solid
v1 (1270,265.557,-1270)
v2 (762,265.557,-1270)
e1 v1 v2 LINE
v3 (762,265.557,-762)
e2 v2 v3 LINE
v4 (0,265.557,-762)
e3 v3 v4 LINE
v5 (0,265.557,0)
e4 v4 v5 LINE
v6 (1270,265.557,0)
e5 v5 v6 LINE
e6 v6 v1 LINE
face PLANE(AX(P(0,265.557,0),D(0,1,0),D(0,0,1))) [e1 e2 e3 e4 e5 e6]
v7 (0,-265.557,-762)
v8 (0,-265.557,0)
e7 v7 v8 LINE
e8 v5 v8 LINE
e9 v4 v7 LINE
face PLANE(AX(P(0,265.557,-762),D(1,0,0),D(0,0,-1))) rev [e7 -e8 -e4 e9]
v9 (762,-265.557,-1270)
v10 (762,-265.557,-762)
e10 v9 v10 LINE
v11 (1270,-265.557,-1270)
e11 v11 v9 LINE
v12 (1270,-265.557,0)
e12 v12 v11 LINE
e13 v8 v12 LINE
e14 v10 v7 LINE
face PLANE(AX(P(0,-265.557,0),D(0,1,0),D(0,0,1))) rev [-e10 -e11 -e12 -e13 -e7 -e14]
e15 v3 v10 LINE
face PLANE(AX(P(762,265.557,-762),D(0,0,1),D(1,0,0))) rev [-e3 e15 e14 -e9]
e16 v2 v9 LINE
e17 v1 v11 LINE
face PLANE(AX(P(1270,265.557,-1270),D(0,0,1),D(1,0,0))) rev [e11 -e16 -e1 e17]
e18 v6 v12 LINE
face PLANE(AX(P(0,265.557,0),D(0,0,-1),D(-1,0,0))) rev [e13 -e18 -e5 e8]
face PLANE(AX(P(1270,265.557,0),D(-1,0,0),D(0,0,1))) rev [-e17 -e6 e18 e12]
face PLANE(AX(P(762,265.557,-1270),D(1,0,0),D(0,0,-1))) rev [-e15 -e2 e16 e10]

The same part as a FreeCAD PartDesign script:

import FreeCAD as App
import Part
import Sketcher
from FreeCAD import Vector
Q = App.Units.Quantity


def add_polygon(sketch, points):
    """Adds a closed chain of lines whose ends are joined by coincident constraints."""
    first, n = sketch.GeometryCount, len(points)
    for a, b in zip(points, points[1:] + points[:1]):
        sketch.addGeometry(Part.LineSegment(App.Vector(*a, 0), App.Vector(*b, 0)), False)
    for i in range(n):
        sketch.addConstraint(Sketcher.Constraint("Coincident", first + i, 2, first + (i + 1) % n, 1))

doc = App.newDocument("Part")
params = doc.addObject("Spreadsheet::Sheet", "Params")
for row, (alias, value) in enumerate([
    ("sketch1_width", "50 in"),
    ("sketch1_width2", "20 in"),
    ("pad1_length", "20.91 in"),
], start=1):
    params.set(f"A{row}", alias)
    params.set(f"B{row}", "=" + value)
    params.setAlias(f"B{row}", alias)

body = doc.addObject("PartDesign::Body", "Body")

sketch1 = doc.addObject("Sketcher::SketchObject", "Sketch")
body.addObject(sketch1)
sketch1.AttachmentSupport = (doc.XZ_Plane, [""])
sketch1.MapMode = "FlatFace"
add_polygon(sketch1, [(0, 0), (1270, 0), (1270, -1270), (762, -1270), (762, -762), (0, -762)])
sketch1.addConstraint([
    Sketcher.Constraint("Horizontal", 0),
    Sketcher.Constraint("Vertical", 1),
    Sketcher.Constraint("Horizontal", 2),
    Sketcher.Constraint("Vertical", 3),
    Sketcher.Constraint("Horizontal", 4),
    Sketcher.Constraint("Vertical", 5),
    Sketcher.Constraint("Coincident", 5, 2, -1, 1),
    Sketcher.Constraint("Equal", 0, 1),
    Sketcher.Constraint("Equal", 2, 3),
    Sketcher.Constraint("DistanceX", 0, 1, 0, 2, Q("50 in")),
    Sketcher.Constraint("DistanceX", 2, 2, 2, 1, Q("20 in")),
])
sketch1.setExpression("Constraints[15]", "Params.sketch1_width")
sketch1.setExpression("Constraints[16]", "Params.sketch1_width2")
pad1 = doc.addObject("PartDesign::Pad", "Pad")
body.addObject(pad1)
pad1.Profile = sketch1
pad1.setExpression("Length", "Params.pad1_length")
pad1.Midplane = True

doc.recompute()
